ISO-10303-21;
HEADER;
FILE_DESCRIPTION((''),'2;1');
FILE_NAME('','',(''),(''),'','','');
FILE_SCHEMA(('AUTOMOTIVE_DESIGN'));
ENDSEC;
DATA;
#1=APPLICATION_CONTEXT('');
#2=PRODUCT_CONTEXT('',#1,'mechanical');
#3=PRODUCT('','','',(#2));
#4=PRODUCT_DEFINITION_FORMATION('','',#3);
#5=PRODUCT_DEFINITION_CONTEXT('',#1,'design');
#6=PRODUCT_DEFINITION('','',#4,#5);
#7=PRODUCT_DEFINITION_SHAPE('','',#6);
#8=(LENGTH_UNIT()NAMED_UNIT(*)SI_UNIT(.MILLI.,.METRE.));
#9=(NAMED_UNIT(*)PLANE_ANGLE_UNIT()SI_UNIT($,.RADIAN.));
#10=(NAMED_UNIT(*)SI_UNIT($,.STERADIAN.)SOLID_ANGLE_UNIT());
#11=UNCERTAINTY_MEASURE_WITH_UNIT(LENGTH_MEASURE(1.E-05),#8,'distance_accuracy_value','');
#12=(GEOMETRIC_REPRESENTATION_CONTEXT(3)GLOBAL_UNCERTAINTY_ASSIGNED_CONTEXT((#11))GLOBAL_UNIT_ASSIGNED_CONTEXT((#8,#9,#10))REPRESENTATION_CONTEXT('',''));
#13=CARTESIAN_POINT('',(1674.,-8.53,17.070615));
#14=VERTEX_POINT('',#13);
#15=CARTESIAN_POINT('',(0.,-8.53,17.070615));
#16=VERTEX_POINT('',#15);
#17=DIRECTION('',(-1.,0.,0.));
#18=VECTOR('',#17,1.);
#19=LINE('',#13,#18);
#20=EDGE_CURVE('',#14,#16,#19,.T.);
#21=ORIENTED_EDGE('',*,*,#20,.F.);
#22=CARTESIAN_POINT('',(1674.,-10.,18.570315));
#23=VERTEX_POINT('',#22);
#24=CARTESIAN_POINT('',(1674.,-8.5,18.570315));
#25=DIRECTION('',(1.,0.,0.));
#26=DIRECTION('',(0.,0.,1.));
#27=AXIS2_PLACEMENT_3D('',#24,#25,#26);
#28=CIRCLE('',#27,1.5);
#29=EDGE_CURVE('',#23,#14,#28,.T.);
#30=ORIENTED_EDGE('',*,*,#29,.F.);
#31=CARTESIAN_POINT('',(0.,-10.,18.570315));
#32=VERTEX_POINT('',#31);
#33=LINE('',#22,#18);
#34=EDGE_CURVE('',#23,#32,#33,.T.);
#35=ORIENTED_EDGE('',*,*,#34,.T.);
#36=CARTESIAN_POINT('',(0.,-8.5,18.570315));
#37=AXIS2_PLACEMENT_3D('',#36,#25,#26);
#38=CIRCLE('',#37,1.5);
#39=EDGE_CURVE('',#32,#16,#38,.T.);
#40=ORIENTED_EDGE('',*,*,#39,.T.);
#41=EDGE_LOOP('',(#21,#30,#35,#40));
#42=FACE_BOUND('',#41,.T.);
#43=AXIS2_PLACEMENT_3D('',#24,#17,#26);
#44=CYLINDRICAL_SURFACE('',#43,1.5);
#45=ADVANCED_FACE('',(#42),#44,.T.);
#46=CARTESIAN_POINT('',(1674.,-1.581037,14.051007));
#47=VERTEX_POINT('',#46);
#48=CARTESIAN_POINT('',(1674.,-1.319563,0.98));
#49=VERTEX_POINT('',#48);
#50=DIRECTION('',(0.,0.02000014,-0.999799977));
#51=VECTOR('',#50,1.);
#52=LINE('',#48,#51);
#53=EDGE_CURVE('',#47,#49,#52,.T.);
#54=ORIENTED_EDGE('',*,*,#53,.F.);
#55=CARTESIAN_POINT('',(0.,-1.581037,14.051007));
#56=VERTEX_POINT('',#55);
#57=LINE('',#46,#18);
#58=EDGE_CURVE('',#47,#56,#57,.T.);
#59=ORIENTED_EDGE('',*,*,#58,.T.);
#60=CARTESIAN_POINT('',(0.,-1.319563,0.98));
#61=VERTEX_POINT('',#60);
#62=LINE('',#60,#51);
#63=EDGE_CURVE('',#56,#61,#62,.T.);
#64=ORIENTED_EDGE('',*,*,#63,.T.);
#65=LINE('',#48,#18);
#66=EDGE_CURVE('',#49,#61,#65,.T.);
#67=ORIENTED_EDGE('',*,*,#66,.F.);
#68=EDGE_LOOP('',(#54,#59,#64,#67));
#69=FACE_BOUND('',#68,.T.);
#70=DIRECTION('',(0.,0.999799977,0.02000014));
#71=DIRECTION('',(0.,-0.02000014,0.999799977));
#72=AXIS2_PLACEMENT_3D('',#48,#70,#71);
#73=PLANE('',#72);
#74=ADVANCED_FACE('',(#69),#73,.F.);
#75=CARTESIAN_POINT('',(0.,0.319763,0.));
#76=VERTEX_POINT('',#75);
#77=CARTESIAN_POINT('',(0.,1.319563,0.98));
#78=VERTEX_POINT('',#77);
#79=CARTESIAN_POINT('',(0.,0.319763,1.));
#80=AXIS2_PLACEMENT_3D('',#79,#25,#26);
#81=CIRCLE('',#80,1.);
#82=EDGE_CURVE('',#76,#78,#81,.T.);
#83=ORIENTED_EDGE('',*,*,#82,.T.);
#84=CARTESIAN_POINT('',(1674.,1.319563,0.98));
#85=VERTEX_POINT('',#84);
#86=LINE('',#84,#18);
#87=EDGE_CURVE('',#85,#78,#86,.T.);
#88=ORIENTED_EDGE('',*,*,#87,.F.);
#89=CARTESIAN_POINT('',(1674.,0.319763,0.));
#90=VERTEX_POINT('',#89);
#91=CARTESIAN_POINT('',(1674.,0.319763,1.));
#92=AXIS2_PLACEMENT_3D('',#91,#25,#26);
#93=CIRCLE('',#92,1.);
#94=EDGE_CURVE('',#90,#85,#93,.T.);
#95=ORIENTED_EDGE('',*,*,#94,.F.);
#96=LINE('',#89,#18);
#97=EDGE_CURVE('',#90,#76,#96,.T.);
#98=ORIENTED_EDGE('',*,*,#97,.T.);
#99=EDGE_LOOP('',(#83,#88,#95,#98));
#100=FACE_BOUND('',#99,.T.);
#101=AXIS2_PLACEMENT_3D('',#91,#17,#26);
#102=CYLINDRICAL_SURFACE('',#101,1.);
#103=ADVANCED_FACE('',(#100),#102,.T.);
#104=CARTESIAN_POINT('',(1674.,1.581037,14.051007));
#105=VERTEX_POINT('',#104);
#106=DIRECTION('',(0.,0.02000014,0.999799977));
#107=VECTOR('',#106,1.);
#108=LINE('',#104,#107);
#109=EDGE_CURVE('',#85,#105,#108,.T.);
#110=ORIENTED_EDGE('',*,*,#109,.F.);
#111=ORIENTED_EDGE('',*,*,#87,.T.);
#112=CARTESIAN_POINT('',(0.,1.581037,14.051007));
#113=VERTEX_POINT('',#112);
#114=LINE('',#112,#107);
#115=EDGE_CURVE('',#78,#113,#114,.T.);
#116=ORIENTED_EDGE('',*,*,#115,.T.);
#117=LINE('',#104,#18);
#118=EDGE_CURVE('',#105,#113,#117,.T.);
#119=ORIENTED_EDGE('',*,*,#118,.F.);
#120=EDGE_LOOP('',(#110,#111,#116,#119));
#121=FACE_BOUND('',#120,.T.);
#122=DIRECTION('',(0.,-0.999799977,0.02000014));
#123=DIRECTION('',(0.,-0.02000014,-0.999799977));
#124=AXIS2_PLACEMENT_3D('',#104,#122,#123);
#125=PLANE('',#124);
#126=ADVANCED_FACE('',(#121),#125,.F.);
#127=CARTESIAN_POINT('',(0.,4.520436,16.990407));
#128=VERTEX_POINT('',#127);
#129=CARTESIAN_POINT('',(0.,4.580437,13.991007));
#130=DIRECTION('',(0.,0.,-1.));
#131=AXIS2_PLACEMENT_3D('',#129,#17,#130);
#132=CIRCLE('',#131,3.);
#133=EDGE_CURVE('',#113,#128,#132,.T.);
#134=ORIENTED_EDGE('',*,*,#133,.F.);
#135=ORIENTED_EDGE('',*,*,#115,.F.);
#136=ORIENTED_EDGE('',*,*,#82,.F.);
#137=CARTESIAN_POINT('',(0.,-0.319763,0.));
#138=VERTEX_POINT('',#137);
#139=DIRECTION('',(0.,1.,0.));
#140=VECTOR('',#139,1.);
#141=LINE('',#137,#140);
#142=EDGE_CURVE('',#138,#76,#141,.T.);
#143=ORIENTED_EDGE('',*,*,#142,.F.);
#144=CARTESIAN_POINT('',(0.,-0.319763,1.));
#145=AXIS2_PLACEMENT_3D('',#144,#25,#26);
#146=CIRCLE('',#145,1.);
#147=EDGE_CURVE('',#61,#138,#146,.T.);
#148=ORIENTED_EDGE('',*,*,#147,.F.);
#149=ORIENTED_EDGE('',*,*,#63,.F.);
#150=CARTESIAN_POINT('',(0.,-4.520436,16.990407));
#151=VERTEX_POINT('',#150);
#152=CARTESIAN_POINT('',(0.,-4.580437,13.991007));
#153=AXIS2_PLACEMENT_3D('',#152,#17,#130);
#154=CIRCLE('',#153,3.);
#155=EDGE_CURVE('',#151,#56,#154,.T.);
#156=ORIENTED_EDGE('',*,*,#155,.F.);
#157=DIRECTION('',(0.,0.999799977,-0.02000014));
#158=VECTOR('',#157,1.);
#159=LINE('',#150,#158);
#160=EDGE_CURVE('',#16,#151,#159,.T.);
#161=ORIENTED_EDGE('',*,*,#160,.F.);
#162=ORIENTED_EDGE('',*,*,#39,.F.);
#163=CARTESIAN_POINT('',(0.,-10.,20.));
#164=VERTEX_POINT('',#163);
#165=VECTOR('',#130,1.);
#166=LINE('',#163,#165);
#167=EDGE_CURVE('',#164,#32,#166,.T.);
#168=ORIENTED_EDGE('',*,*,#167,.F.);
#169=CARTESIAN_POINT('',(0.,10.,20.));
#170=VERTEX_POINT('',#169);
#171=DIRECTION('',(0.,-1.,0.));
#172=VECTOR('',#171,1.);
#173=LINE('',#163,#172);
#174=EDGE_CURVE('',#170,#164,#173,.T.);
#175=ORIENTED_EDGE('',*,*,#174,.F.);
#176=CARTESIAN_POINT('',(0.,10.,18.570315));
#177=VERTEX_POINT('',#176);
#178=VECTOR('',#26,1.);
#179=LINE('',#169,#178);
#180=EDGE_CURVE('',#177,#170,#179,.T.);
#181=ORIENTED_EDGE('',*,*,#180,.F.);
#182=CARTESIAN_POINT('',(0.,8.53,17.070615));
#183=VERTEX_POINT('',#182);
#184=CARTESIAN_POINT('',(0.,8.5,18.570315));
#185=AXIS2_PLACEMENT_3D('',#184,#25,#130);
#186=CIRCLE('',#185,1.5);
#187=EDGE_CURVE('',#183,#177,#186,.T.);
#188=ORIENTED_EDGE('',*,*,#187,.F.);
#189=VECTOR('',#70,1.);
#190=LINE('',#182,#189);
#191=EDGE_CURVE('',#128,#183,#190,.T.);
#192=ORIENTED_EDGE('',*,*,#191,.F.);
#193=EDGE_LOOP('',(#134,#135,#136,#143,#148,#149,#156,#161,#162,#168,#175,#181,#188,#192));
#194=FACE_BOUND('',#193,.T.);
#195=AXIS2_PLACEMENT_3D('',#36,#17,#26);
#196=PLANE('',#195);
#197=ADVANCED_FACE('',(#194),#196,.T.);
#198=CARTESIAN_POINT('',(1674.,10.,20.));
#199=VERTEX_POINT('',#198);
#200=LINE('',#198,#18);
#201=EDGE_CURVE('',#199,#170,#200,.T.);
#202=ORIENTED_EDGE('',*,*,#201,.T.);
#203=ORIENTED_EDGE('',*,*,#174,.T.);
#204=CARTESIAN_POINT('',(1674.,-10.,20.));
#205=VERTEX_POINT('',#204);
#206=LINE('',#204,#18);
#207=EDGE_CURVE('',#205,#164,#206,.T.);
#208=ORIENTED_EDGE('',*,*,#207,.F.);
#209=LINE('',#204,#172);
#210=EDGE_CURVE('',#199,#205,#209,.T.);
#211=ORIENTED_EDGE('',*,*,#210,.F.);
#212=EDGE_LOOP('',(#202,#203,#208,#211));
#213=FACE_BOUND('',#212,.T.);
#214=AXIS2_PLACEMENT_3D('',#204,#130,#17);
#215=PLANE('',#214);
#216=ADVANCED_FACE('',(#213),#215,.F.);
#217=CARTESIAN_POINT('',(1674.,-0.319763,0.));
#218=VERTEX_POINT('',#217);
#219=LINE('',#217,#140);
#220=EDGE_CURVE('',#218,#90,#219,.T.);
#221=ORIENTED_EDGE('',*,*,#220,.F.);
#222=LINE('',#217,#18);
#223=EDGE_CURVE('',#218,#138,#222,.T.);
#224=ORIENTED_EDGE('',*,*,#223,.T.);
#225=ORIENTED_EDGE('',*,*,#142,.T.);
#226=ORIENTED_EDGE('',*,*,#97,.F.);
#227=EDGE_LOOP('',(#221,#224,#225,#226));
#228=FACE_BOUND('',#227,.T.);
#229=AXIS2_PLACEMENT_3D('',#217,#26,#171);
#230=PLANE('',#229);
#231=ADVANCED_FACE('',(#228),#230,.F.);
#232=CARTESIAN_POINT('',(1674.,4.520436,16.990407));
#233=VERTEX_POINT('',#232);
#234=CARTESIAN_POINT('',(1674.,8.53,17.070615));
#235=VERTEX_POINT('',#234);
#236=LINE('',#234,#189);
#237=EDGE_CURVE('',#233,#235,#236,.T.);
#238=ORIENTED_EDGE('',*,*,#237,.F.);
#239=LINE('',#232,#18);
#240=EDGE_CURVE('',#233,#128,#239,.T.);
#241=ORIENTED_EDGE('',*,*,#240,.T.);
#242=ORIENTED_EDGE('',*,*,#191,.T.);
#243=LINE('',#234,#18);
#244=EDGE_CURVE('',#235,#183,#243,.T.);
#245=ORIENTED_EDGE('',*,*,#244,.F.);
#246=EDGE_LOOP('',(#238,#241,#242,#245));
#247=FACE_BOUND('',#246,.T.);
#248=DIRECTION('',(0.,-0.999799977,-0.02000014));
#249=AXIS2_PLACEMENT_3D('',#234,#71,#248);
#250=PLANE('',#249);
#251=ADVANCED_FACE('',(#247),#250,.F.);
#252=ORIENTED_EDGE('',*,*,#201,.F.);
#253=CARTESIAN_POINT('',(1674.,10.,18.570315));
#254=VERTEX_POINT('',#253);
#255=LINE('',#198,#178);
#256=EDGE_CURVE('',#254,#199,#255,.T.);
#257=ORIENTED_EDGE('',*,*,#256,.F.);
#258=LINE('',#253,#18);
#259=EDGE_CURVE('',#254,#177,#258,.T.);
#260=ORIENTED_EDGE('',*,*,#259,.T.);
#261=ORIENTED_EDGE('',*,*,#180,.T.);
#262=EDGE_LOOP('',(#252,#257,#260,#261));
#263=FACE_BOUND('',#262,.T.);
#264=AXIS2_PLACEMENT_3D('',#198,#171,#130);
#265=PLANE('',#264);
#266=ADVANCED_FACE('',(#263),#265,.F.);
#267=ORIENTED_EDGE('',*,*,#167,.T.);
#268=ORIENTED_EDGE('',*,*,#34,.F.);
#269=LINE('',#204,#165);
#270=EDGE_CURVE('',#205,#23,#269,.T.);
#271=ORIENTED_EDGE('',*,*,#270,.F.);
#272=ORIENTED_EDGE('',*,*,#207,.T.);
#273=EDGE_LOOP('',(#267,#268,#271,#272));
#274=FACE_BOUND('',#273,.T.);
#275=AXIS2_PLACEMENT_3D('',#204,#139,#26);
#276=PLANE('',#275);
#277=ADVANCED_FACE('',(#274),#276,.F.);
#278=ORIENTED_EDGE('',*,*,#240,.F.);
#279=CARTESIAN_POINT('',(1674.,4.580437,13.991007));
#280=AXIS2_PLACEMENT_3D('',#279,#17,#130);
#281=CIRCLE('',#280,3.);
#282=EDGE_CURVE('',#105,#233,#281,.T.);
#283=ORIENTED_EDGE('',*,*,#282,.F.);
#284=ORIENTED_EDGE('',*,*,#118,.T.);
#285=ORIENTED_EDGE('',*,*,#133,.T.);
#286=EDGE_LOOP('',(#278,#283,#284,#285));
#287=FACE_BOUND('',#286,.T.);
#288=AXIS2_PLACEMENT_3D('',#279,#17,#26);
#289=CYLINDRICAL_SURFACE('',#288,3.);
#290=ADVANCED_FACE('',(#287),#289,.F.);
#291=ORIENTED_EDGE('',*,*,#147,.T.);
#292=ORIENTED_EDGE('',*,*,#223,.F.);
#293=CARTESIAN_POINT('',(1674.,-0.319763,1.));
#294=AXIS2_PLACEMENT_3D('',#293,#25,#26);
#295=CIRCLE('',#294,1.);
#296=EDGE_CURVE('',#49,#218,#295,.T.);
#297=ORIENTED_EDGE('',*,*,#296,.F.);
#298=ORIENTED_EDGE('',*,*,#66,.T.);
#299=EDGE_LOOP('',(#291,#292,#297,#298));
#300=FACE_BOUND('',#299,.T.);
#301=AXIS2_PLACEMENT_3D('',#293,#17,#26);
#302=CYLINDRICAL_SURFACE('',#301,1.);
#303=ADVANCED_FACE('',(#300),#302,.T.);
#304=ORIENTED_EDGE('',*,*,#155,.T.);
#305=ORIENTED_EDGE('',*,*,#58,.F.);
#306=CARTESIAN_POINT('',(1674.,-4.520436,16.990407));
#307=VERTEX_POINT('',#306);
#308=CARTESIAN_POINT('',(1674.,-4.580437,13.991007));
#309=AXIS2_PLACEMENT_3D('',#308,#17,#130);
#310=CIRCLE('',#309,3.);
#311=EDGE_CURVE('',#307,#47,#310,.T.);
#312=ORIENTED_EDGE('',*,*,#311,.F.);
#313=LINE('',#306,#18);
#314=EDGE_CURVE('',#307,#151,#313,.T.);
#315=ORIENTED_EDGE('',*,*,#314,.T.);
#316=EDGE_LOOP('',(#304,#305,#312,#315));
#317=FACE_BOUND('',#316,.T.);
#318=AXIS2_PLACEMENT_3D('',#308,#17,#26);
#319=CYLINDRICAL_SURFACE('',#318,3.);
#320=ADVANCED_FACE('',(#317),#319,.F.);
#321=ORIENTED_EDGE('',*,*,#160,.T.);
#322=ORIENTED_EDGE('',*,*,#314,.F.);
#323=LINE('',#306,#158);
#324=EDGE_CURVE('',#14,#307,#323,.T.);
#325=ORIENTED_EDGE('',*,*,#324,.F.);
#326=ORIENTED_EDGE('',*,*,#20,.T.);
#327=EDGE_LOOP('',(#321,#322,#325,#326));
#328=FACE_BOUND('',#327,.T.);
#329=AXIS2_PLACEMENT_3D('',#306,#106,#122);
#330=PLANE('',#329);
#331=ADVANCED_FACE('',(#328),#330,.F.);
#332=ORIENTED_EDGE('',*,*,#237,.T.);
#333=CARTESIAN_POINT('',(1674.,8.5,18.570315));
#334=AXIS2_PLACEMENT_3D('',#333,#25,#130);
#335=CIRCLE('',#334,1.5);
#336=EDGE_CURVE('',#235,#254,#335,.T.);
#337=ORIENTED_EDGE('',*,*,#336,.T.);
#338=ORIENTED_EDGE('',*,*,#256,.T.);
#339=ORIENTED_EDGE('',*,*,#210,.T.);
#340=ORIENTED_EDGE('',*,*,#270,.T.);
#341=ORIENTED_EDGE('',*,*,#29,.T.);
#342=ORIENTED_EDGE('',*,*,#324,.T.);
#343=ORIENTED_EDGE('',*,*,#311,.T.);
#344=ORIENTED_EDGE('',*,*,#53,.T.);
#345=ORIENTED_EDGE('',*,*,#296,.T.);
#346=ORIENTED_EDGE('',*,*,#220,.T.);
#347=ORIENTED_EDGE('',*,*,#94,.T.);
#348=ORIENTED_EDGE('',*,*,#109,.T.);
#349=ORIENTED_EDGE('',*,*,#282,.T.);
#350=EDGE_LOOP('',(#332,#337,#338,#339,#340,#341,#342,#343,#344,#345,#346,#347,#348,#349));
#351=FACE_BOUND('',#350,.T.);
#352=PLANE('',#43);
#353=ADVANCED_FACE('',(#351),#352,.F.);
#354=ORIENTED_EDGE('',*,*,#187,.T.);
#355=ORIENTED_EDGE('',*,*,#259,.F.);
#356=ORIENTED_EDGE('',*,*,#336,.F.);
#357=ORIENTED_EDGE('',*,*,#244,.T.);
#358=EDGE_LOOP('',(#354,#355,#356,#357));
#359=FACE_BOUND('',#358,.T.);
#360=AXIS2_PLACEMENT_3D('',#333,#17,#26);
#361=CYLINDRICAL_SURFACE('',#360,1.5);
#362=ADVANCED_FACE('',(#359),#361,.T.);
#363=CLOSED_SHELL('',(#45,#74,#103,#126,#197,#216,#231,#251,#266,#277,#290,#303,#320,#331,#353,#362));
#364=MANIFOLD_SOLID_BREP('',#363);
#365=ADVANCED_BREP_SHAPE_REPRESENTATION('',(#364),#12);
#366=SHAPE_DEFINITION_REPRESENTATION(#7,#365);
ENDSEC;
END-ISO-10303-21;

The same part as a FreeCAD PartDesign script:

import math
import FreeCAD as App
import Part
import Sketcher
from FreeCAD import Vector

doc = App.newDocument("Part")
body = doc.addObject("PartDesign::Body", "Body")

# Sketch on YZ plane
sketch1 = body.newObject("Sketcher::SketchObject", "Sketch")
sketch1.AttachmentSupport = (doc.getObject("YZ_Plane"), [""])
sketch1.MapMode = "FlatFace"
sketch1.addGeometry([
    Part.LineSegment(Vector(10, 20, 0), Vector(-10, 20, 0)),  # 0
    Part.LineSegment(Vector(-10, 20, 0), Vector(-10, 18.570315, 0)),  # 1
    Part.ArcOfCircle(Part.Circle(Vector(-8.5, 18.570315, 0), Vector(0, 0, 1), 1.5), math.radians(180), math.radians(268.854)),  # 2
    Part.LineSegment(Vector(-8.53, 17.070615, 0), Vector(-4.520436, 16.990407, 0)),  # 3
    Part.ArcOfCircle(Part.Circle(Vector(-4.580437, 13.991007, 0), Vector(0, 0, 1), 3), math.radians(1.146), math.radians(88.854)),  # 4
    Part.LineSegment(Vector(-1.581037, 14.051007, 0), Vector(-1.319563, 0.98, 0)),  # 5
    Part.ArcOfCircle(Part.Circle(Vector(-0.319763, 1, 0), Vector(0, 0, 1), 1), math.radians(-178.854), math.radians(-90)),  # 6
    Part.LineSegment(Vector(-0.319763, 0, 0), Vector(0.319763, 0, 0)),  # 7
    Part.ArcOfCircle(Part.Circle(Vector(0.319763, 1, 0), Vector(0, 0, 1), 1), math.radians(-90), math.radians(-1.146)),  # 8
    Part.LineSegment(Vector(1.319563, 0.98, 0), Vector(1.581037, 14.051007, 0)),  # 9
    Part.ArcOfCircle(Part.Circle(Vector(4.580437, 13.991007, 0), Vector(0, 0, 1), 3), math.radians(91.146), math.radians(178.854)),  # 10
    Part.LineSegment(Vector(4.520436, 16.990407, 0), Vector(8.53, 17.070615, 0)),  # 11
    Part.ArcOfCircle(Part.Circle(Vector(8.5, 18.570315, 0), Vector(0, 0, 1), 1.5), math.radians(-88.854), math.radians(0)),  # 12
    Part.LineSegment(Vector(10, 18.570315, 0), Vector(10, 20, 0)),  # 13
], False)
sketch1.addConstraint([
    Sketcher.Constraint("Coincident", 0, 2, 1, 1),
    Sketcher.Constraint("Coincident", 1, 2, 2, 1),
    Sketcher.Constraint("Coincident", 2, 2, 3, 1),
    Sketcher.Constraint("Coincident", 3, 2, 4, 2),
    Sketcher.Constraint("Coincident", 4, 1, 5, 1),
    Sketcher.Constraint("Coincident", 5, 2, 6, 1),
    Sketcher.Constraint("Coincident", 6, 2, 7, 1),
    Sketcher.Constraint("Coincident", 7, 2, 8, 1),
    Sketcher.Constraint("Coincident", 8, 2, 9, 1),
    Sketcher.Constraint("Coincident", 9, 2, 10, 2),
    Sketcher.Constraint("Coincident", 10, 1, 11, 1),
    Sketcher.Constraint("Coincident", 11, 2, 12, 1),
    Sketcher.Constraint("Coincident", 12, 2, 13, 1),
    Sketcher.Constraint("Coincident", 13, 2, 0, 1),
    Sketcher.Constraint("Horizontal", 0),
    Sketcher.Constraint("Vertical", 1),
    Sketcher.Constraint("Horizontal", 7),
    Sketcher.Constraint("Vertical", 13),
    Sketcher.Constraint("PointOnObject", 6, 2, -1),
    Sketcher.Constraint("Radius", 4, 3.0),
    Sketcher.Constraint("Radius", 6, 1.0),
    Sketcher.Constraint("Radius", 8, 1.0),
    Sketcher.Constraint("Radius", 10, 3.0),
    Sketcher.Constraint("Radius", 2, 1.5),
    Sketcher.Constraint("Radius", 12, 1.5),
    Sketcher.Constraint("DistanceX", 0, 2, 0, 1, 20.0),
    Sketcher.Constraint("DistanceX", 0, 2, -1, 1, 10.0),
    Sketcher.Constraint("DistanceY", -1, 1, 0, 2, 20.0),
    Sketcher.Constraint("DistanceX", 5, 2, 10, 3, 5.899999),
    Sketcher.Constraint("DistanceX", 2, 2, -1, 1, 8.53),
    Sketcher.Constraint("DistanceY", -1, 1, 5, 2, 0.98),
    Sketcher.Constraint("DistanceY", -1, 1, 8, 2, 0.98),
    Sketcher.Constraint("DistanceX", -1, 1, 11, 2, 8.53),
    Sketcher.Constraint("DistanceX", 4, 3, 3, 2, 0.06),
    Sketcher.Constraint("DistanceY", 4, 3, 4, 1, 0.06),
    Sketcher.Constraint("DistanceY", 10, 3, 4, 1, 0.06),
    Sketcher.Constraint("DistanceY", 10, 3, 9, 2, 0.06),
    Sketcher.Constraint("DistanceX", 10, 1, 10, 3, 0.06),
    Sketcher.Constraint("DistanceX", 4, 3, 8, 3, 4.9002),
    Sketcher.Constraint("DistanceY", 2, 2, 1, 2, 1.4997),
    Sketcher.Constraint("DistanceX", 5, 2, 6, 2, 0.9998),
    Sketcher.Constraint("DistanceX", 4, 1, 7, 2, 1.9008),
    Sketcher.Constraint("DistanceY", 11, 2, 12, 2, 1.4997),
    Sketcher.Constraint("DistanceX", 7, 1, 7, 2, 0.639525),
    Sketcher.Constraint("DistanceY", 1, 2, 1, 1, 1.429685),
    Sketcher.Constraint("DistanceY", 13, 1, 13, 2, 1.429685),
    Sketcher.Constraint("Distance", 3, 4.010366),
    Sketcher.Constraint("Distance", 5, 13.073622),
])
pad1 = body.newObject("PartDesign::Pad", "Pad")
pad1.Profile = sketch1
pad1.Length = 1674

doc.recompute()
